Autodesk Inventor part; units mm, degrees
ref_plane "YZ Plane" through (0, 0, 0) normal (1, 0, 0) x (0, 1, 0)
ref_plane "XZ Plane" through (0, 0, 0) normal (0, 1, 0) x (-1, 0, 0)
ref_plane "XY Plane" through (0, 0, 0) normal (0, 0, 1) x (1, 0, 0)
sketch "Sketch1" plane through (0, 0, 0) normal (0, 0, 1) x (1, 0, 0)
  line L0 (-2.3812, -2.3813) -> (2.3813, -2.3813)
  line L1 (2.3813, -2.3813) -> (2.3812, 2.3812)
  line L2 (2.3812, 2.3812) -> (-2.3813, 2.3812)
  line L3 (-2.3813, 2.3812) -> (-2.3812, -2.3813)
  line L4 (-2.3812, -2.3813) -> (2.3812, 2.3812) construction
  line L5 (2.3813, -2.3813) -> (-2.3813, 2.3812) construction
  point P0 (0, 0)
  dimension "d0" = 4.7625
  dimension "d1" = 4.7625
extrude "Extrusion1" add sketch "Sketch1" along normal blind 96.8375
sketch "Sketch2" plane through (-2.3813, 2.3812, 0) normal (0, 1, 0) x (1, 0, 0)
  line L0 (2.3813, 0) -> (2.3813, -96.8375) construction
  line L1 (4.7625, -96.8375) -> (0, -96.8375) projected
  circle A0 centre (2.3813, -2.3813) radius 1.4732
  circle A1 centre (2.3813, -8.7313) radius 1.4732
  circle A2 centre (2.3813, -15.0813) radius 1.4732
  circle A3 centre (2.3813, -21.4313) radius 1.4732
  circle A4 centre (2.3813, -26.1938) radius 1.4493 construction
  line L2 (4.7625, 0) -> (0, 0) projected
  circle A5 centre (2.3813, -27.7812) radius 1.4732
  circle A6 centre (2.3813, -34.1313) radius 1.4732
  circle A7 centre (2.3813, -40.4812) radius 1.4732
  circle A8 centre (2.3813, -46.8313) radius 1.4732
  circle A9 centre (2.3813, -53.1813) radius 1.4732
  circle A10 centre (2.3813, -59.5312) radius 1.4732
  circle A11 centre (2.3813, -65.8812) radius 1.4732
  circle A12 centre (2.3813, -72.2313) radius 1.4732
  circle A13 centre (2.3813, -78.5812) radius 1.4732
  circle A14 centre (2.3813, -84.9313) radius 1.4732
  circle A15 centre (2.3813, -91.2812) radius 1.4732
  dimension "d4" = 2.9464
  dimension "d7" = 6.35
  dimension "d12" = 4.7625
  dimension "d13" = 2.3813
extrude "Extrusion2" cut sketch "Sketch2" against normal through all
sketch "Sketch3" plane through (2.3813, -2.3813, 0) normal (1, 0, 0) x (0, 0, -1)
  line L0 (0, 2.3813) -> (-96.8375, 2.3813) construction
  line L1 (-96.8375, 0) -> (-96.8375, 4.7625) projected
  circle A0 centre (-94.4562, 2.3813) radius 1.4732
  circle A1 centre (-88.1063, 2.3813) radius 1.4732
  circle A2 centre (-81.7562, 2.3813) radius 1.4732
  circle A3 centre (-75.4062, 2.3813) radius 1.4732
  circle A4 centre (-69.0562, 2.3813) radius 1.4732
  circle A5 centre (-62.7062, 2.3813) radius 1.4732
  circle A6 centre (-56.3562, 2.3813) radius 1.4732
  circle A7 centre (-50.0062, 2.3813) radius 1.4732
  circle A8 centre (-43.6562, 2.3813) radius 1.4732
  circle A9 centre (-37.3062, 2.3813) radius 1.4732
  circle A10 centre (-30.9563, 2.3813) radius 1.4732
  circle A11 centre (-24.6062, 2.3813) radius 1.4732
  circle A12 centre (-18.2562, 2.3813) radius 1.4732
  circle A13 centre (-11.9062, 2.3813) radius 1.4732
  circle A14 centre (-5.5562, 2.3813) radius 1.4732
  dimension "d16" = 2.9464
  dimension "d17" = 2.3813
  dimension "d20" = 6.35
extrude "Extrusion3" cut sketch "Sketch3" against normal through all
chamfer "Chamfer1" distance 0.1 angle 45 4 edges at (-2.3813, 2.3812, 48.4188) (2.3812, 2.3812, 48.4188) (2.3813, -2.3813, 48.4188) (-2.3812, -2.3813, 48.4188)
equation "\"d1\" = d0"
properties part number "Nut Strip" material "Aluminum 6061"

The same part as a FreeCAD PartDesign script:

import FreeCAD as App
import Part
import Sketcher
from FreeCAD import Vector
Q = App.Units.Quantity


def edges_at(feature, points):
    """Names of the edges that pass closest to the given points."""
    edges = feature.Shape.Edges
    near = lambda p: min(range(len(edges)), key=lambda i: edges[i].distToShape(Part.Vertex(*p))[0])
    return sorted({f"Edge{near(p) + 1}" for p in points})

doc = App.newDocument("Part")
body = doc.addObject("PartDesign::Body", "Body")

sketch1 = body.newObject("Sketcher::SketchObject", "Sketch")
sketch1.AttachmentSupport = (doc.getObject("XY_Plane"), [""])
sketch1.MapMode = "FlatFace"
sketch1.addGeometry(Part.LineSegment(Vector(-2.4, 2.4, 0), Vector(-2.4, -2.4, 0)), False)
sketch1.addGeometry(Part.LineSegment(Vector(-2.4, -2.4, 0), Vector(2.4, -2.4, 0)), False)
sketch1.addGeometry(Part.LineSegment(Vector(2.4, -2.4, 0), Vector(2.4, 2.4, 0)), False)
sketch1.addGeometry(Part.LineSegment(Vector(2.4, 2.4, 0), Vector(-2.4, 2.4, 0)), False)
sketch1.addConstraint(Sketcher.Constraint("Coincident", 0, 2, 1, 1))
sketch1.addConstraint(Sketcher.Constraint("Coincident", 1, 2, 2, 1))
sketch1.addConstraint(Sketcher.Constraint("Coincident", 2, 2, 3, 1))
sketch1.addConstraint(Sketcher.Constraint("Coincident", 3, 2, 0, 1))
sketch1.addConstraint(Sketcher.Constraint("Vertical", 0))
sketch1.addConstraint(Sketcher.Constraint("Horizontal", 1))
sketch1.addConstraint(Sketcher.Constraint("Vertical", 2))
sketch1.addConstraint(Sketcher.Constraint("Horizontal", 3))
sketch1.addConstraint(Sketcher.Constraint("Symmetric", 0, 2, 2, 2, -1, 1))
sketch1.addConstraint(Sketcher.Constraint("Equal", 3, 0))
sketch1.addConstraint(Sketcher.Constraint("DistanceX", 1, 1, 1, 2, Q("0.1875 in")))
pad1 = body.newObject("PartDesign::Pad", "Pad")
pad1.Profile = sketch1
pad1.Length = Q("3.8125 in")

sketch2 = body.newObject("Sketcher::SketchObject", "Sketch001")
sketch2.AttachmentSupport = (doc.getObject("XZ_Plane"), [""])
sketch2.MapMode = "FlatFace"
sketch2.AttachmentOffset = App.Placement(Vector(0, 0, -0.093748 * 25.4), App.Rotation())
sketch2.addGeometry(Part.Circle(Vector(0, 2.4, 0), Vector(0, 0, 1), 1.5), False)
sketch2.addGeometry(Part.Circle(Vector(0, 8.7, 0), Vector(0, 0, 1), 1.5), False)
sketch2.addGeometry(Part.Circle(Vector(0, 15.1, 0), Vector(0, 0, 1), 1.5), False)
sketch2.addGeometry(Part.Circle(Vector(0, 21.4, 0), Vector(0, 0, 1), 1.5), False)
sketch2.addGeometry(Part.Circle(Vector(0, 27.8, 0), Vector(0, 0, 1), 1.5), False)
sketch2.addGeometry(Part.Circle(Vector(0, 34.1, 0), Vector(0, 0, 1), 1.5), False)
sketch2.addGeometry(Part.Circle(Vector(0, 40.5, 0), Vector(0, 0, 1), 1.5), False)
sketch2.addGeometry(Part.Circle(Vector(0, 46.8, 0), Vector(0, 0, 1), 1.5), False)
sketch2.addGeometry(Part.Circle(Vector(0, 53.2, 0), Vector(0, 0, 1), 1.5), False)
sketch2.addGeometry(Part.Circle(Vector(0, 59.5, 0), Vector(0, 0, 1), 1.5), False)
sketch2.addGeometry(Part.Circle(Vector(0, 65.9, 0), Vector(0, 0, 1), 1.5), False)
sketch2.addGeometry(Part.Circle(Vector(0, 72.2, 0), Vector(0, 0, 1), 1.5), False)
sketch2.addGeometry(Part.Circle(Vector(0, 78.6, 0), Vector(0, 0, 1), 1.5), False)
sketch2.addGeometry(Part.Circle(Vector(0, 84.9, 0), Vector(0, 0, 1), 1.5), False)
sketch2.addGeometry(Part.Circle(Vector(0, 91.3, 0), Vector(0, 0, 1), 1.5), False)
sketch2.addConstraint(Sketcher.Constraint("Equal", 0, 1))
sketch2.addConstraint(Sketcher.Constraint("Equal", 1, 2))
sketch2.addConstraint(Sketcher.Constraint("Equal", 2, 3))
sketch2.addConstraint(Sketcher.Constraint("Equal", 3, 4))
sketch2.addConstraint(Sketcher.Constraint("Equal", 4, 5))
sketch2.addConstraint(Sketcher.Constraint("Equal", 5, 6))
sketch2.addConstraint(Sketcher.Constraint("Equal", 6, 7))
sketch2.addConstraint(Sketcher.Constraint("Equal", 7, 8))
sketch2.addConstraint(Sketcher.Constraint("Equal", 8, 9))
sketch2.addConstraint(Sketcher.Constraint("Equal", 9, 10))
sketch2.addConstraint(Sketcher.Constraint("Equal", 10, 11))
sketch2.addConstraint(Sketcher.Constraint("Equal", 11, 12))
sketch2.addConstraint(Sketcher.Constraint("Equal", 12, 13))
sketch2.addConstraint(Sketcher.Constraint("Equal", 13, 14))
sketch2.addConstraint(Sketcher.Constraint("PointOnObject", 0, 3, -2))
sketch2.addConstraint(Sketcher.Constraint("PointOnObject", 1, 3, -2))
sketch2.addConstraint(Sketcher.Constraint("PointOnObject", 2, 3, -2))
sketch2.addConstraint(Sketcher.Constraint("PointOnObject", 3, 3, -2))
sketch2.addConstraint(Sketcher.Constraint("PointOnObject", 4, 3, -2))
sketch2.addConstraint(Sketcher.Constraint("PointOnObject", 5, 3, -2))
sketch2.addConstraint(Sketcher.Constraint("PointOnObject", 6, 3, -2))
sketch2.addConstraint(Sketcher.Constraint("PointOnObject", 7, 3, -2))
sketch2.addConstraint(Sketcher.Constraint("PointOnObject", 8, 3, -2))
sketch2.addConstraint(Sketcher.Constraint("PointOnObject", 9, 3, -2))
sketch2.addConstraint(Sketcher.Constraint("PointOnObject", 10, 3, -2))
sketch2.addConstraint(Sketcher.Constraint("PointOnObject", 11, 3, -2))
sketch2.addConstraint(Sketcher.Constraint("PointOnObject", 12, 3, -2))
sketch2.addConstraint(Sketcher.Constraint("PointOnObject", 13, 3, -2))
sketch2.addConstraint(Sketcher.Constraint("PointOnObject", 14, 3, -2))
sketch2.addConstraint(Sketcher.Constraint("Diameter", 0, Q("0.116 in")))
sketch2.addConstraint(Sketcher.Constraint("DistanceY", 0, 3, 4, 3, Q("1 in")))
sketch2.addConstraint(Sketcher.Constraint("DistanceY", 1, 3, 5, 3, Q("1 in")))
sketch2.addConstraint(Sketcher.Constraint("DistanceY", 2, 3, 6, 3, Q("1 in")))
sketch2.addConstraint(Sketcher.Constraint("DistanceY", 3, 3, 7, 3, Q("1 in")))
sketch2.addConstraint(Sketcher.Constraint("DistanceY", 4, 3, 8, 3, Q("1 in")))
sketch2.addConstraint(Sketcher.Constraint("DistanceY", 5, 3, 9, 3, Q("1 in")))
sketch2.addConstraint(Sketcher.Constraint("DistanceY", 6, 3, 10, 3, Q("1 in")))
sketch2.addConstraint(Sketcher.Constraint("DistanceY", 7, 3, 11, 3, Q("1 in")))
sketch2.addConstraint(Sketcher.Constraint("DistanceY", 8, 3, 12, 3, Q("1 in")))
sketch2.addConstraint(Sketcher.Constraint("DistanceY", 9, 3, 13, 3, Q("1 in")))
sketch2.addConstraint(Sketcher.Constraint("DistanceY", 10, 3, 14, 3, Q("1 in")))
sketch2.addConstraint(Sketcher.Constraint("DistanceY", 0, 3, 1, 3, Q("0.25 in")))
sketch2.addConstraint(Sketcher.Constraint("DistanceY", 1, 3, 2, 3, Q("0.25 in")))
sketch2.addConstraint(Sketcher.Constraint("DistanceY", 2, 3, 3, 3, Q("0.25 in")))
sketch2.addConstraint(Sketcher.Constraint("DistanceY", -1, 1, 0, 3, Q("0.093752 in")))
pocket1 = body.newObject("PartDesign::Pocket", "Pocket")
pocket1.Profile = sketch2
pocket1.Type = "ThroughAll"
pocket1.Reversed = True

sketch3 = body.newObject("Sketcher::SketchObject", "Sketch002")
sketch3.AttachmentSupport = (doc.getObject("YZ_Plane"), [""])
sketch3.MapMode = "FlatFace"
sketch3.AttachmentOffset = App.Placement(Vector(0, 0, 0.093752 * 25.4), App.Rotation())
sketch3.addGeometry(Part.Circle(Vector(0, 94.5, 0), Vector(0, 0, 1), 1.5), False)
sketch3.addGeometry(Part.Circle(Vector(0, 88.1, 0), Vector(0, 0, 1), 1.5), False)
sketch3.addGeometry(Part.Circle(Vector(0, 81.8, 0), Vector(0, 0, 1), 1.5), False)
sketch3.addGeometry(Part.Circle(Vector(0, 75.4, 0), Vector(0, 0, 1), 1.5), False)
sketch3.addGeometry(Part.Circle(Vector(0, 69.1, 0), Vector(0, 0, 1), 1.5), False)
sketch3.addGeometry(Part.Circle(Vector(0, 62.7, 0), Vector(0, 0, 1), 1.5), False)
sketch3.addGeometry(Part.Circle(Vector(0, 56.4, 0), Vector(0, 0, 1), 1.5), False)
sketch3.addGeometry(Part.Circle(Vector(0, 50, 0), Vector(0, 0, 1), 1.5), False)
sketch3.addGeometry(Part.Circle(Vector(0, 43.7, 0), Vector(0, 0, 1), 1.5), False)
sketch3.addGeometry(Part.Circle(Vector(0, 37.3, 0), Vector(0, 0, 1), 1.5), False)
sketch3.addGeometry(Part.Circle(Vector(0, 31, 0), Vector(0, 0, 1), 1.5), False)
sketch3.addGeometry(Part.Circle(Vector(0, 24.6, 0), Vector(0, 0, 1), 1.5), False)
sketch3.addGeometry(Part.Circle(Vector(0, 18.3, 0), Vector(0, 0, 1), 1.5), False)
sketch3.addGeometry(Part.Circle(Vector(0, 11.9, 0), Vector(0, 0, 1), 1.5), False)
sketch3.addGeometry(Part.Circle(Vector(0, 5.6, 0), Vector(0, 0, 1), 1.5), False)
sketch3.addConstraint(Sketcher.Constraint("Equal", 0, 1))
sketch3.addConstraint(Sketcher.Constraint("Equal", 1, 2))
sketch3.addConstraint(Sketcher.Constraint("Equal", 2, 3))
sketch3.addConstraint(Sketcher.Constraint("Equal", 3, 4))
sketch3.addConstraint(Sketcher.Constraint("Equal", 4, 5))
sketch3.addConstraint(Sketcher.Constraint("Equal", 5, 6))
sketch3.addConstraint(Sketcher.Constraint("Equal", 6, 7))
sketch3.addConstraint(Sketcher.Constraint("Equal", 7, 8))
sketch3.addConstraint(Sketcher.Constraint("Equal", 8, 9))
sketch3.addConstraint(Sketcher.Constraint("Equal", 9, 10))
sketch3.addConstraint(Sketcher.Constraint("Equal", 10, 11))
sketch3.addConstraint(Sketcher.Constraint("Equal", 11, 12))
sketch3.addConstraint(Sketcher.Constraint("Equal", 12, 13))
sketch3.addConstraint(Sketcher.Constraint("Equal", 13, 14))
sketch3.addConstraint(Sketcher.Constraint("PointOnObject", 0, 3, -2))
sketch3.addConstraint(Sketcher.Constraint("PointOnObject", 1, 3, -2))
sketch3.addConstraint(Sketcher.Constraint("PointOnObject", 2, 3, -2))
sketch3.addConstraint(Sketcher.Constraint("PointOnObject", 3, 3, -2))
sketch3.addConstraint(Sketcher.Constraint("PointOnObject", 4, 3, -2))
sketch3.addConstraint(Sketcher.Constraint("PointOnObject", 5, 3, -2))
sketch3.addConstraint(Sketcher.Constraint("PointOnObject", 6, 3, -2))
sketch3.addConstraint(Sketcher.Constraint("PointOnObject", 7, 3, -2))
sketch3.addConstraint(Sketcher.Constraint("PointOnObject", 8, 3, -2))
sketch3.addConstraint(Sketcher.Constraint("PointOnObject", 9, 3, -2))
sketch3.addConstraint(Sketcher.Constraint("PointOnObject", 10, 3, -2))
sketch3.addConstraint(Sketcher.Constraint("PointOnObject", 11, 3, -2))
sketch3.addConstraint(Sketcher.Constraint("PointOnObject", 12, 3, -2))
sketch3.addConstraint(Sketcher.Constraint("PointOnObject", 13, 3, -2))
sketch3.addConstraint(Sketcher.Constraint("PointOnObject", 14, 3, -2))
sketch3.addConstraint(Sketcher.Constraint("Diameter", 0, Q("0.116 in")))
sketch3.addConstraint(Sketcher.Constraint("DistanceY", 4, 3, 0, 3, Q("1 in")))
sketch3.addConstraint(Sketcher.Constraint("DistanceY", 5, 3, 1, 3, Q("1 in")))
sketch3.addConstraint(Sketcher.Constraint("DistanceY", 6, 3, 2, 3, Q("1 in")))
sketch3.addConstraint(Sketcher.Constraint("DistanceY", 7, 3, 3, 3, Q("1 in")))
sketch3.addConstraint(Sketcher.Constraint("DistanceY", 8, 3, 4, 3, Q("1 in")))
sketch3.addConstraint(Sketcher.Constraint("DistanceY", 9, 3, 5, 3, Q("1 in")))
sketch3.addConstraint(Sketcher.Constraint("DistanceY", 10, 3, 6, 3, Q("1 in")))
sketch3.addConstraint(Sketcher.Constraint("DistanceY", 11, 3, 7, 3, Q("1 in")))
sketch3.addConstraint(Sketcher.Constraint("DistanceY", 12, 3, 8, 3, Q("1 in")))
sketch3.addConstraint(Sketcher.Constraint("DistanceY", 13, 3, 9, 3, Q("1 in")))
sketch3.addConstraint(Sketcher.Constraint("DistanceY", 14, 3, 10, 3, Q("1 in")))
sketch3.addConstraint(Sketcher.Constraint("DistanceY", 1, 3, 0, 3, Q("0.25 in")))
sketch3.addConstraint(Sketcher.Constraint("DistanceY", 2, 3, 1, 3, Q("0.25 in")))
sketch3.addConstraint(Sketcher.Constraint("DistanceY", 3, 3, 2, 3, Q("0.25 in")))
sketch3.addConstraint(Sketcher.Constraint("DistanceY", -1, 1, 0, 3, Q("3.718748 in")))
pocket2 = body.newObject("PartDesign::Pocket", "Pocket001")
pocket2.Profile = sketch3
pocket2.Type = "ThroughAll"
doc.recompute()

chamfer = body.newObject("PartDesign::Chamfer", "Chamfer")
chamfer.Base = (pocket2, edges_at(pocket2, [
    (-2.381, 2.381, 48.419),
    (2.381, 2.381, 48.419),
    (2.381, -2.381, 48.419),
    (-2.381, -2.381, 48.419),
]))
chamfer.Size = 0.1

doc.recompute()
